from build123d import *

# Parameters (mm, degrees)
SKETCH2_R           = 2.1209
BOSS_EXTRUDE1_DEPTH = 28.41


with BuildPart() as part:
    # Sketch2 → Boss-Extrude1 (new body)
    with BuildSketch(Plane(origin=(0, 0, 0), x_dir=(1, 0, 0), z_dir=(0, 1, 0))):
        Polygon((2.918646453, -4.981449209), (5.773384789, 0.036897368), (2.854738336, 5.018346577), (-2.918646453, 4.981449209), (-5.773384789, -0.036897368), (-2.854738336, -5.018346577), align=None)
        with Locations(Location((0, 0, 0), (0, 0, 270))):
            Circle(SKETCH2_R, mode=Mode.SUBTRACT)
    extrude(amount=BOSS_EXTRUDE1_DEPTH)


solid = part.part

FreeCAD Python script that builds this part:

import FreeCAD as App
import Part
import Sketcher

V = App.Vector
Q = App.Units.Quantity

doc = App.newDocument("Part")
params = doc.addObject("Spreadsheet::Sheet", "Params")
for row, (alias, value) in enumerate([
    ("sketch1_diameter", "0.167 in"),
    ("pad1_length", "28.41 mm"),
], start=1):
    params.set(f"A{row}", alias)
    params.set(f"B{row}", "=" + value)
    params.setAlias(f"B{row}", alias)

body = doc.addObject("PartDesign::Body", "Body")

# Sketch on XZ plane
sketch1 = doc.addObject("Sketcher::SketchObject", "Sketch")
body.addObject(sketch1)
sketch1.AttachmentSupport = (doc.XZ_Plane, [""])
sketch1.MapMode = "FlatFace"
sketch1.addGeometry([
    Part.LineSegment(V(2.9, 5, 0), V(5.8, 0, 0)),  # 0
    Part.LineSegment(V(5.8, 0, 0), V(2.9, -5, 0)),  # 1
    Part.LineSegment(V(2.9, -5, 0), V(-2.9, -5, 0)),  # 2
    Part.LineSegment(V(-2.9, -5, 0), V(-5.8, 0, 0)),  # 3
    Part.LineSegment(V(-5.8, 0, 0), V(-2.9, 5, 0)),  # 4
    Part.LineSegment(V(-2.9, 5, 0), V(2.9, 5, 0)),  # 5
    Part.Circle(V(0, 0, 0), V(0, 0, 1), 2.1),  # 6
], False)
sketch1.addConstraint([
    Sketcher.Constraint("Coincident", 0, 2, 1, 1),
    Sketcher.Constraint("Coincident", 1, 2, 2, 1),
    Sketcher.Constraint("Coincident", 2, 2, 3, 1),
    Sketcher.Constraint("Coincident", 3, 2, 4, 1),
    Sketcher.Constraint("Coincident", 4, 2, 5, 1),
    Sketcher.Constraint("Coincident", 5, 2, 0, 1),
    Sketcher.Constraint("Coincident", 6, 3, -1, 1),
    Sketcher.Constraint("Symmetric", 0, 2, 3, 2, -1, 1),
    Sketcher.Constraint("Symmetric", 1, 2, 4, 2, -1, 1),
    Sketcher.Constraint("Symmetric", 2, 2, 5, 2, -1, 1),
    Sketcher.Constraint("Equal", 0, 1),
    Sketcher.Constraint("Equal", 1, 2),
    Sketcher.Constraint("Diameter", 6, Q("0.167 in")),
    Sketcher.Constraint("DistanceX", -1, 1, 1, 2, Q("2.854738 mm")),
    Sketcher.Constraint("DistanceY", 2, 2, -1, 1, Q("4.981449 mm")),
    Sketcher.Constraint("DistanceY", 1, 2, 0, 2, Q("4.981449 mm")),
    Sketcher.Constraint("DistanceX", 2, 2, 0, 2, Q("8.692031 mm")),
])
sketch1.setExpression("Constraints[12]", "Params.sketch1_diameter")
pad1 = doc.addObject("PartDesign::Pad", "Pad")
body.addObject(pad1)
pad1.Profile = sketch1
pad1.setExpression("Length", "Params.pad1_length")
pad1.Reversed = True

doc.recompute()
